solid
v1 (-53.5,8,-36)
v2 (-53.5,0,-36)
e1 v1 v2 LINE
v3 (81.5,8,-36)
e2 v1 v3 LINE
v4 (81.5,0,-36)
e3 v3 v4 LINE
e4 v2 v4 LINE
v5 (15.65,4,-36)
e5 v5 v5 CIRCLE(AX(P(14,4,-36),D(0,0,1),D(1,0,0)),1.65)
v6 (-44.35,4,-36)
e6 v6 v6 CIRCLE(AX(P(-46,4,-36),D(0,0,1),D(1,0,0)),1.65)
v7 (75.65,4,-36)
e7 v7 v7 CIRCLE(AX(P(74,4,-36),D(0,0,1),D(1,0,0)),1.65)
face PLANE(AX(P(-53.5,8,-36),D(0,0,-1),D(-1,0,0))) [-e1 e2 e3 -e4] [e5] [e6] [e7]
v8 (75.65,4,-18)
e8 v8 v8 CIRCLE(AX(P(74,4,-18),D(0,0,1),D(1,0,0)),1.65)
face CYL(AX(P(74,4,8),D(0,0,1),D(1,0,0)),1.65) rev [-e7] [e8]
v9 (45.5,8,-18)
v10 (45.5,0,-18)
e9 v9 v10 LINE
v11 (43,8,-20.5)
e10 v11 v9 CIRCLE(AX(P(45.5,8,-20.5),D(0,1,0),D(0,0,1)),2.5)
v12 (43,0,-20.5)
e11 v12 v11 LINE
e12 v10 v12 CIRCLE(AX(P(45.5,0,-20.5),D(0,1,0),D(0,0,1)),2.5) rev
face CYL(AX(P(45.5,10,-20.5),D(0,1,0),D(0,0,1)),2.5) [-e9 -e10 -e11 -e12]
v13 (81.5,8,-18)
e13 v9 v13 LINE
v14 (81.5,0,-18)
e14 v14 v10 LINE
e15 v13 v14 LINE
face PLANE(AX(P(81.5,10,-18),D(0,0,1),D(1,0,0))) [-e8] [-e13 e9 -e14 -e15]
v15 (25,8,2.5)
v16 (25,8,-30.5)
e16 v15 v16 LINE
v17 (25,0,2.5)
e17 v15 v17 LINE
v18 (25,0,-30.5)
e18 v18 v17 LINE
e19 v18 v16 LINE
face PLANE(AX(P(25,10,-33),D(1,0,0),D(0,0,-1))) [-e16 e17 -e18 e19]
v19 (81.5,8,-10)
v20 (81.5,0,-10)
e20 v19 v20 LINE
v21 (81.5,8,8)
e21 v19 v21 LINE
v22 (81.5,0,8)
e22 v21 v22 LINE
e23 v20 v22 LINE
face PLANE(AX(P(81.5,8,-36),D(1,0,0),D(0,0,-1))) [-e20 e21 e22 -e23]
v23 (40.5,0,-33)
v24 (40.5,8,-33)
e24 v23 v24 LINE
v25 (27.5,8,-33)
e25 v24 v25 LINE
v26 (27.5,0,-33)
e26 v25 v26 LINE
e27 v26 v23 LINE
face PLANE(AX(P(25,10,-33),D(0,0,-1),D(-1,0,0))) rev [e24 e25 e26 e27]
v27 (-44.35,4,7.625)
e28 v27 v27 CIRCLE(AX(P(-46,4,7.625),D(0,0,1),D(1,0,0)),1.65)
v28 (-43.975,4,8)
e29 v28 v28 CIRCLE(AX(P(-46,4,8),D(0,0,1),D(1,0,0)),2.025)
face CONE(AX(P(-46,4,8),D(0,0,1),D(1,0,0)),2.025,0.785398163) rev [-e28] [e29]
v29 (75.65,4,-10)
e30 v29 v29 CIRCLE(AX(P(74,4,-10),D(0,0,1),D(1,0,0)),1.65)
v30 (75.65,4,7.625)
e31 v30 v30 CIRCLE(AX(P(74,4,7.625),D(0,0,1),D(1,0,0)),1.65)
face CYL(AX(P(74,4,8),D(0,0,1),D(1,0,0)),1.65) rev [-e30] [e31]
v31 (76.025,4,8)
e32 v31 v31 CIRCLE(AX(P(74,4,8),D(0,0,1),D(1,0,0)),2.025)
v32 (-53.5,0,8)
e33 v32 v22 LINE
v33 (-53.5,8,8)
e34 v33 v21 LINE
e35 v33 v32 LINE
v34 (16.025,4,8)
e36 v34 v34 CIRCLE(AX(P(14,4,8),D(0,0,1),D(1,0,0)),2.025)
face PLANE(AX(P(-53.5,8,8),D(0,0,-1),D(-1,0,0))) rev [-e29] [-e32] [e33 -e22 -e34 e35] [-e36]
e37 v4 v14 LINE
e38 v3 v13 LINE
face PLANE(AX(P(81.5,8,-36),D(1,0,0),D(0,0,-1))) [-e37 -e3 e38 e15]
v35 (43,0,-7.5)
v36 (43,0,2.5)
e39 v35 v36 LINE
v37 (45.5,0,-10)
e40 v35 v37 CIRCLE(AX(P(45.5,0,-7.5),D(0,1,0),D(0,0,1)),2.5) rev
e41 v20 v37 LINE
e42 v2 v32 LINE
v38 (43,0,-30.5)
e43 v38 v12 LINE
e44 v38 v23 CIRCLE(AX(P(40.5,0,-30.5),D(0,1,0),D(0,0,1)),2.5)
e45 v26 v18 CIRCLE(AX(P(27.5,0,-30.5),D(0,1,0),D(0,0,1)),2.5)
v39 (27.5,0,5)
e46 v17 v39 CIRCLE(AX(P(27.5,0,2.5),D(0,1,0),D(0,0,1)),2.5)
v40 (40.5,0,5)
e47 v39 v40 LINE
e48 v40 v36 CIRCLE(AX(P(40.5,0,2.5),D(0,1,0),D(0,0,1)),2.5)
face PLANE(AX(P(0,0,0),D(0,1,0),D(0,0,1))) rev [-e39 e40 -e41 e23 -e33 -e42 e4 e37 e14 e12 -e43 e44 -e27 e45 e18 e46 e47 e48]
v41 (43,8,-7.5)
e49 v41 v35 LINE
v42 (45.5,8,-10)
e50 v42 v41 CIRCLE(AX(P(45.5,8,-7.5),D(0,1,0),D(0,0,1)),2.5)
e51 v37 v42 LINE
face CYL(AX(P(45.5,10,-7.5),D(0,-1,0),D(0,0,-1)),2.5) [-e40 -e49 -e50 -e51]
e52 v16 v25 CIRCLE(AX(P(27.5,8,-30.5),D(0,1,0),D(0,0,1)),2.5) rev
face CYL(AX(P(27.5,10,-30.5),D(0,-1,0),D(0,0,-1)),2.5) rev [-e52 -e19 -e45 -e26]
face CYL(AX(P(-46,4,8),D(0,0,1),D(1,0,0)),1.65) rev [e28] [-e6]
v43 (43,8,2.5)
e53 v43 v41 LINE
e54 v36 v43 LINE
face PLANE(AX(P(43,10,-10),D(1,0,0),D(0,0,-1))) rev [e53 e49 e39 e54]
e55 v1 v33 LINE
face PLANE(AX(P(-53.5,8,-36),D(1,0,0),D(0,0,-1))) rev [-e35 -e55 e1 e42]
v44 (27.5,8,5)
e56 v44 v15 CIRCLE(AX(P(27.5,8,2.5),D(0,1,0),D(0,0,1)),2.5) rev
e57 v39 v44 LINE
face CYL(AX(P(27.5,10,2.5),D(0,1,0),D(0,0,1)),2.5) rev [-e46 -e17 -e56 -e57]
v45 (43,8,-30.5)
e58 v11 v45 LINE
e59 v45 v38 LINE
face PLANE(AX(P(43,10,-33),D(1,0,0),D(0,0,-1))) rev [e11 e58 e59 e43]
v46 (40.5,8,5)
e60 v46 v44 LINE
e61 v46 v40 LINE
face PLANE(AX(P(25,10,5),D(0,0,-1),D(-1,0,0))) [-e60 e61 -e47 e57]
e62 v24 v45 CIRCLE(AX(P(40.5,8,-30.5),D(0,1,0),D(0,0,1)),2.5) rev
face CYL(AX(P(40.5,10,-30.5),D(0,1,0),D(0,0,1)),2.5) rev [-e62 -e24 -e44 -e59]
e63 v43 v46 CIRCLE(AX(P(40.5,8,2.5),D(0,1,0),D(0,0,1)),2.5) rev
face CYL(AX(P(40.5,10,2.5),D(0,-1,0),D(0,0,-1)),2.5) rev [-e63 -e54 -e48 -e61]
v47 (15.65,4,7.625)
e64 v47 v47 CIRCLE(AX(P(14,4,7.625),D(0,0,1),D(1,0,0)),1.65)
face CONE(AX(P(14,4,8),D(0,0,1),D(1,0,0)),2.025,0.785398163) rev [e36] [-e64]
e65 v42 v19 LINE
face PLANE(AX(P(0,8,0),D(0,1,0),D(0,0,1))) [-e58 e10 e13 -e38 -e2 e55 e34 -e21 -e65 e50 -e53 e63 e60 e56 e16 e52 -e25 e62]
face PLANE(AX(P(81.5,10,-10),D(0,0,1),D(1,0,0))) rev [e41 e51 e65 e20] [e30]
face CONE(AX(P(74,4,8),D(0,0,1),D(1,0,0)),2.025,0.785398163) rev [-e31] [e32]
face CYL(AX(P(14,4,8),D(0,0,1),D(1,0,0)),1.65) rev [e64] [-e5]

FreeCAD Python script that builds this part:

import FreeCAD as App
import Part
import Sketcher

V = App.Vector


def edges_at(feature, points):
    """Names of the edges that pass closest to the given points."""
    edges = feature.Shape.Edges
    near = lambda p: min(range(len(edges)), key=lambda i: edges[i].distToShape(Part.Vertex(*p))[0])
    return sorted({f"Edge{near(p) + 1}" for p in points})


def add_polygon(sketch, points):
    """Adds a closed chain of lines whose ends are joined by coincident constraints."""
    first, n = sketch.GeometryCount, len(points)
    for a, b in zip(points, points[1:] + points[:1]):
        sketch.addGeometry(Part.LineSegment(App.Vector(*a, 0), App.Vector(*b, 0)), False)
    for i in range(n):
        sketch.addConstraint(Sketcher.Constraint("Coincident", first + i, 2, first + (i + 1) % n, 1))

doc = App.newDocument("Part")
body = doc.addObject("PartDesign::Body", "Body")

# Sketch on XZ plane
sketch1 = body.newObject("Sketcher::SketchObject", "Sketch")
sketch1.AttachmentSupport = (doc.getObject("XZ_Plane"), [""])
sketch1.MapMode = "FlatFace"
add_polygon(sketch1, [(-54, -36), (-54, 8), (82, 8), (82, -36)])  # lines 0-3
sketch1.addConstraint([
    Sketcher.Constraint("Vertical", 0),
    Sketcher.Constraint("Horizontal", 1),
    Sketcher.Constraint("Vertical", 2),
    Sketcher.Constraint("Horizontal", 3),
    Sketcher.Constraint("DistanceX", 1, 1, 1, 2, 135.0),
    Sketcher.Constraint("DistanceY", 0, 1, 0, 2, 44.0),
    Sketcher.Constraint("DistanceY", -1, 1, 0, 2, 8.0),
    Sketcher.Constraint("DistanceX", 0, 2, -1, 1, 53.5),
])
pad1 = body.newObject("PartDesign::Pad", "Pad")
pad1.Profile = sketch1
pad1.Length = 8
pad1.Reversed = True

# Sketch on XZ plane
sketch2 = body.newObject("Sketcher::SketchObject", "Sketch001")
sketch2.AttachmentSupport = (doc.getObject("XZ_Plane"), [""])
sketch2.MapMode = "FlatFace"
add_polygon(sketch2, [(82, -10), (82, -18), (43, -18), (43, -33), (25, -33), (25, 5), (43, 5), (43, -10)])  # lines 0-7
sketch2.addConstraint([
    Sketcher.Constraint("Vertical", 0),
    Sketcher.Constraint("Horizontal", 1),
    Sketcher.Constraint("Vertical", 2),
    Sketcher.Constraint("Horizontal", 3),
    Sketcher.Constraint("Vertical", 4),
    Sketcher.Constraint("Horizontal", 5),
    Sketcher.Constraint("Vertical", 6),
    Sketcher.Constraint("Horizontal", 7),
    Sketcher.Constraint("Vertical", 2, 2, 5, 2),
    Sketcher.Constraint("Equal", 2, 6),
    Sketcher.Constraint("DistanceX", 3, 2, 3, 1, 18.0),
    Sketcher.Constraint("DistanceY", 0, 2, 0, 1, 8.0),
    Sketcher.Constraint("DistanceY", 2, 2, 2, 1, 15.0),
    Sketcher.Constraint("DistanceX", 1, 2, 1, 1, 38.5),
    Sketcher.Constraint("DistanceY", 0, 2, -1, 1, 18.0),
    Sketcher.Constraint("DistanceX", -1, 1, 1, 2, 43.0),
])
pocket1 = body.newObject("PartDesign::Pocket", "Pocket")
pocket1.Profile = sketch2
pocket1.Length = 10
doc.recompute()

fillet = body.newObject("PartDesign::Fillet", "Fillet")
fillet.Base = (pocket1, edges_at(pocket1, [
    (43, 4, -33),
    (25, 4, -33),
    (25, 4, 5),
    (43, 4, 5),
]))
fillet.Radius = 2.5
doc.recompute()

fillet2 = body.newObject("PartDesign::Fillet", "Fillet001")
fillet2.Base = (fillet, edges_at(fillet, [(43, 4, -18), (43, 4, -10)]))
fillet2.Radius = 2.5

# Sketch on XY plane
sketch3 = body.newObject("Sketcher::SketchObject", "Sketch002")
sketch3.AttachmentSupport = (doc.getObject("XY_Plane"), [""])
sketch3.MapMode = "FlatFace"
sketch3.AttachmentOffset = App.Placement(V(0, 0, 8), App.Rotation())
sketch3.addGeometry([
    Part.Circle(V(-46, 4, 0), V(0, 0, 1), 1.6),
    Part.Circle(V(14, 4, 0), V(0, 0, 1), 1.6),
    Part.Circle(V(74, 4, 0), V(0, 0, 1), 1.6),
], False)
sketch3.addConstraint([
    Sketcher.Constraint("Equal", 0, 1),
    Sketcher.Constraint("Equal", 1, 2),
    Sketcher.Constraint("Horizontal", 0, 3, 1, 3),
    Sketcher.Constraint("Horizontal", 1, 3, 2, 3),
    Sketcher.Constraint("Diameter", 0, 3.3),
    Sketcher.Constraint("DistanceX", 0, 3, -1, 1, 46.0),
    Sketcher.Constraint("DistanceY", -1, 1, 0, 3, 4.0),
    Sketcher.Constraint("DistanceX", -1, 1, 1, 3, 14.0),
    Sketcher.Constraint("DistanceX", -1, 1, 2, 3, 74.0),
])
doc.recompute()
hole = body.newObject("PartDesign::Hole", "Hole")
hole.Profile = sketch3
hole.ThreadType = "None"
hole.Diameter = 3.3
hole.DepthType = "ThroughAll"
hole.HoleCutType = "Countersink"
hole.HoleCutDiameter = 4.05
hole.HoleCutCountersinkAngle = 90

doc.recompute()
